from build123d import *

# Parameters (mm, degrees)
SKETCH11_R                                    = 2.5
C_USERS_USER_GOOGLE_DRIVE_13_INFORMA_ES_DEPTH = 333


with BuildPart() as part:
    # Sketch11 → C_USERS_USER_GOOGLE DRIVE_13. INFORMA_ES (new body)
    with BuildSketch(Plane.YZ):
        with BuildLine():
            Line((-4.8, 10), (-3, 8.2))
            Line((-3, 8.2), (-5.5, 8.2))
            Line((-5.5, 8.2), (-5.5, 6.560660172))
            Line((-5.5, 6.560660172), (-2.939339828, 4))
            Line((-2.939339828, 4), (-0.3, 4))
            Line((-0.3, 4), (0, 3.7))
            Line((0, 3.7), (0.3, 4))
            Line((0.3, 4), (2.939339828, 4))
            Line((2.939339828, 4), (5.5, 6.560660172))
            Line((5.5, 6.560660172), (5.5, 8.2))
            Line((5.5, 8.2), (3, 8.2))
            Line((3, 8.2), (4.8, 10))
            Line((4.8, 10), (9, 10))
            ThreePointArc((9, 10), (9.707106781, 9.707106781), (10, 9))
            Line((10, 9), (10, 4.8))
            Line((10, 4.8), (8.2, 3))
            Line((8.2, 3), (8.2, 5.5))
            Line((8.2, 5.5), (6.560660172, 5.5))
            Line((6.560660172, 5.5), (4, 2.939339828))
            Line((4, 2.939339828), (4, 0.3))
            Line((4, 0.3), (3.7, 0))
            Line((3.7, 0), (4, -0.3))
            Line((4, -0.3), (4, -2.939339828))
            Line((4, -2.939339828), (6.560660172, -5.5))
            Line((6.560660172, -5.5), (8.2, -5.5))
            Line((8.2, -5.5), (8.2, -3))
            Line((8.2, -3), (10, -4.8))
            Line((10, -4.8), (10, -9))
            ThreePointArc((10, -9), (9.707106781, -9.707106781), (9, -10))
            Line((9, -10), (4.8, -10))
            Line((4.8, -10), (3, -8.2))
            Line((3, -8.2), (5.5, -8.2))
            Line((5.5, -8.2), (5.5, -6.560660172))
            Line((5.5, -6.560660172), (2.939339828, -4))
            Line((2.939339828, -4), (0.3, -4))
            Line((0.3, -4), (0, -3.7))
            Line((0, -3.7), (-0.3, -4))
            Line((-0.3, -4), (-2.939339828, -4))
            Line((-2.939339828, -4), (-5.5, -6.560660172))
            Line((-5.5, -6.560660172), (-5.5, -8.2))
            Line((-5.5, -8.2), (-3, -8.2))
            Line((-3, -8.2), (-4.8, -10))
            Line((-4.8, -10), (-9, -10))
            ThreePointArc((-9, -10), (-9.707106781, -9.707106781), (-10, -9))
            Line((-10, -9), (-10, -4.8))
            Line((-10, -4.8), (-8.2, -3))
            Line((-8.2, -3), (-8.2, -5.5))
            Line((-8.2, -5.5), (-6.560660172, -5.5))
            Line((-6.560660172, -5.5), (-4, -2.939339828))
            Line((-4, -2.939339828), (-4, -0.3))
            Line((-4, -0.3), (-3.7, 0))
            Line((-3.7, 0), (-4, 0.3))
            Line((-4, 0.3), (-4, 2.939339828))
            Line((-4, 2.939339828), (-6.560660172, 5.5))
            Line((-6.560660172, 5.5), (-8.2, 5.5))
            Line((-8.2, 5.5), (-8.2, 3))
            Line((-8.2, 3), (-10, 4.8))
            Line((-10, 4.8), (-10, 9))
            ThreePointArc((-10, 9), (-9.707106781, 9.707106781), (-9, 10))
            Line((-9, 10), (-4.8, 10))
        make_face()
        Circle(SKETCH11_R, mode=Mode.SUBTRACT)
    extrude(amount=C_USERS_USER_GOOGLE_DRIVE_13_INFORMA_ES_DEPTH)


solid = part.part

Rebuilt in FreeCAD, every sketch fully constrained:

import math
import FreeCAD as App
import Part
import Sketcher

V = App.Vector

doc = App.newDocument("Part")
body = doc.addObject("PartDesign::Body", "Body")

# Sketch on YZ plane
sketch1 = body.newObject("Sketcher::SketchObject", "Sketch")
sketch1.AttachmentSupport = (doc.getObject("YZ_Plane"), [""])
sketch1.MapMode = "FlatFace"
sketch1.addGeometry([
    Part.LineSegment(V(-3, 8.2, 0), V(-4.8, 10, 0)),  # 0
    Part.LineSegment(V(-4.8, 10, 0), V(-9, 10, 0)),  # 1
    Part.ArcOfCircle(Part.Circle(V(-9, 9, 0), V(0, 0, 1), 1), math.radians(90), math.radians(180)),  # 2
    Part.LineSegment(V(-10, 9, 0), V(-10, 4.8, 0)),  # 3
    Part.LineSegment(V(-10, 4.8, 0), V(-8.2, 3, 0)),  # 4
    Part.LineSegment(V(-8.2, 3, 0), V(-8.2, 5.5, 0)),  # 5
    Part.LineSegment(V(-8.2, 5.5, 0), V(-6.56, 5.5, 0)),  # 6
    Part.LineSegment(V(-6.56, 5.5, 0), V(-4, 2.94, 0)),  # 7
    Part.LineSegment(V(-4, 2.94, 0), V(-4, 0.3, 0)),  # 8
    Part.LineSegment(V(-4, 0.3, 0), V(-3.7, 0, 0)),  # 9
    Part.LineSegment(V(-3.7, 0, 0), V(-4, -0.3, 0)),  # 10
    Part.LineSegment(V(-4, -0.3, 0), V(-4, -2.94, 0)),  # 11
    Part.LineSegment(V(-4, -2.94, 0), V(-6.56, -5.5, 0)),  # 12
    Part.LineSegment(V(-6.56, -5.5, 0), V(-8.2, -5.5, 0)),  # 13
    Part.LineSegment(V(-8.2, -5.5, 0), V(-8.2, -3, 0)),  # 14
    Part.LineSegment(V(-8.2, -3, 0), V(-10, -4.8, 0)),  # 15
    Part.LineSegment(V(-10, -4.8, 0), V(-10, -9, 0)),  # 16
    Part.ArcOfCircle(Part.Circle(V(-9, -9, 0), V(0, 0, 1), 1), math.radians(-180), math.radians(-90)),  # 17
    Part.LineSegment(V(-9, -10, 0), V(-4.8, -10, 0)),  # 18
    Part.LineSegment(V(-4.8, -10, 0), V(-3, -8.2, 0)),  # 19
    Part.LineSegment(V(-3, -8.2, 0), V(-5.5, -8.2, 0)),  # 20
    Part.LineSegment(V(-5.5, -8.2, 0), V(-5.5, -6.56, 0)),  # 21
    Part.LineSegment(V(-5.5, -6.56, 0), V(-2.94, -4, 0)),  # 22
    Part.LineSegment(V(-2.94, -4, 0), V(-0.3, -4, 0)),  # 23
    Part.LineSegment(V(-0.3, -4, 0), V(0, -3.7, 0)),  # 24
    Part.LineSegment(V(0, -3.7, 0), V(0.3, -4, 0)),  # 25
    Part.LineSegment(V(0.3, -4, 0), V(2.94, -4, 0)),  # 26
    Part.LineSegment(V(2.94, -4, 0), V(5.5, -6.56, 0)),  # 27
    Part.LineSegment(V(5.5, -6.56, 0), V(5.5, -8.2, 0)),  # 28
    Part.LineSegment(V(5.5, -8.2, 0), V(3, -8.2, 0)),  # 29
    Part.LineSegment(V(3, -8.2, 0), V(4.8, -10, 0)),  # 30
    Part.LineSegment(V(4.8, -10, 0), V(9, -10, 0)),  # 31
    Part.ArcOfCircle(Part.Circle(V(9, -9, 0), V(0, 0, 1), 1), math.radians(-90), math.radians(0)),  # 32
    Part.LineSegment(V(10, -9, 0), V(10, -4.8, 0)),  # 33
    Part.LineSegment(V(10, -4.8, 0), V(8.2, -3, 0)),  # 34
    Part.LineSegment(V(8.2, -3, 0), V(8.2, -5.5, 0)),  # 35
    Part.LineSegment(V(8.2, -5.5, 0), V(6.56, -5.5, 0)),  # 36
    Part.LineSegment(V(6.56, -5.5, 0), V(4, -2.94, 0)),  # 37
    Part.LineSegment(V(4, -2.94, 0), V(4, -0.3, 0)),  # 38
    Part.LineSegment(V(4, -0.3, 0), V(3.7, 0, 0)),  # 39
    Part.LineSegment(V(3.7, 0, 0), V(4, 0.3, 0)),  # 40
    Part.LineSegment(V(4, 0.3, 0), V(4, 2.94, 0)),  # 41
    Part.LineSegment(V(4, 2.94, 0), V(6.56, 5.5, 0)),  # 42
    Part.LineSegment(V(6.56, 5.5, 0), V(8.2, 5.5, 0)),  # 43
    Part.LineSegment(V(8.2, 5.5, 0), V(8.2, 3, 0)),  # 44
    Part.LineSegment(V(8.2, 3, 0), V(10, 4.8, 0)),  # 45
    Part.LineSegment(V(10, 4.8, 0), V(10, 9, 0)),  # 46
    Part.ArcOfCircle(Part.Circle(V(9, 9, 0), V(0, 0, 1), 1), math.radians(0), math.radians(90)),  # 47
    Part.LineSegment(V(9, 10, 0), V(4.8, 10, 0)),  # 48
    Part.LineSegment(V(4.8, 10, 0), V(3, 8.2, 0)),  # 49
    Part.LineSegment(V(3, 8.2, 0), V(5.5, 8.2, 0)),  # 50
    Part.LineSegment(V(5.5, 8.2, 0), V(5.5, 6.56, 0)),  # 51
    Part.LineSegment(V(5.5, 6.56, 0), V(2.94, 4, 0)),  # 52
    Part.LineSegment(V(2.94, 4, 0), V(0.3, 4, 0)),  # 53
    Part.LineSegment(V(0.3, 4, 0), V(0, 3.7, 0)),  # 54
    Part.LineSegment(V(0, 3.7, 0), V(-0.3, 4, 0)),  # 55
    Part.LineSegment(V(-0.3, 4, 0), V(-2.94, 4, 0)),  # 56
    Part.LineSegment(V(-2.94, 4, 0), V(-5.5, 6.56, 0)),  # 57
    Part.LineSegment(V(-5.5, 6.56, 0), V(-5.5, 8.2, 0)),  # 58
    Part.LineSegment(V(-5.5, 8.2, 0), V(-3, 8.2, 0)),  # 59
    Part.Circle(V(0, 0, 0), V(0, 0, 1), 2.5),  # 60
], False)
sketch1.addConstraint([
    Sketcher.Constraint("Coincident", 0, 2, 1, 1),
    Sketcher.Constraint("Tangent", 1, 2, 2, 1),
    Sketcher.Constraint("Tangent", 2, 2, 3, 1),
    Sketcher.Constraint("Coincident", 3, 2, 4, 1),
    Sketcher.Constraint("Coincident", 4, 2, 5, 1),
    Sketcher.Constraint("Coincident", 5, 2, 6, 1),
    Sketcher.Constraint("Coincident", 6, 2, 7, 1),
    Sketcher.Constraint("Coincident", 7, 2, 8, 1),
    Sketcher.Constraint("Coincident", 8, 2, 9, 1),
    Sketcher.Constraint("Coincident", 9, 2, 10, 1),
    Sketcher.Constraint("Coincident", 10, 2, 11, 1),
    Sketcher.Constraint("Coincident", 11, 2, 12, 1),
    Sketcher.Constraint("Coincident", 12, 2, 13, 1),
    Sketcher.Constraint("Coincident", 13, 2, 14, 1),
    Sketcher.Constraint("Coincident", 14, 2, 15, 1),
    Sketcher.Constraint("Coincident", 15, 2, 16, 1),
    Sketcher.Constraint("Tangent", 16, 2, 17, 1),
    Sketcher.Constraint("Tangent", 17, 2, 18, 1),
    Sketcher.Constraint("Coincident", 18, 2, 19, 1),
    Sketcher.Constraint("Coincident", 19, 2, 20, 1),
    Sketcher.Constraint("Coincident", 20, 2, 21, 1),
    Sketcher.Constraint("Coincident", 21, 2, 22, 1),
    Sketcher.Constraint("Coincident", 22, 2, 23, 1),
    Sketcher.Constraint("Coincident", 23, 2, 24, 1),
    Sketcher.Constraint("Coincident", 24, 2, 25, 1),
    Sketcher.Constraint("Coincident", 25, 2, 26, 1),
    Sketcher.Constraint("Coincident", 26, 2, 27, 1),
    Sketcher.Constraint("Coincident", 27, 2, 28, 1),
    Sketcher.Constraint("Coincident", 28, 2, 29, 1),
    Sketcher.Constraint("Coincident", 29, 2, 30, 1),
    Sketcher.Constraint("Coincident", 30, 2, 31, 1),
    Sketcher.Constraint("Tangent", 31, 2, 32, 1),
    Sketcher.Constraint("Tangent", 32, 2, 33, 1),
    Sketcher.Constraint("Coincident", 33, 2, 34, 1),
    Sketcher.Constraint("Coincident", 34, 2, 35, 1),
    Sketcher.Constraint("Coincident", 35, 2, 36, 1),
    Sketcher.Constraint("Coincident", 36, 2, 37, 1),
    Sketcher.Constraint("Coincident", 37, 2, 38, 1),
    Sketcher.Constraint("Coincident", 38, 2, 39, 1),
    Sketcher.Constraint("Coincident", 39, 2, 40, 1),
    Sketcher.Constraint("Coincident", 40, 2, 41, 1),
    Sketcher.Constraint("Coincident", 41, 2, 42, 1),
    Sketcher.Constraint("Coincident", 42, 2, 43, 1),
    Sketcher.Constraint("Coincident", 43, 2, 44, 1),
    Sketcher.Constraint("Coincident", 44, 2, 45, 1),
    Sketcher.Constraint("Coincident", 45, 2, 46, 1),
    Sketcher.Constraint("Tangent", 46, 2, 47, 1),
    Sketcher.Constraint("Tangent", 47, 2, 48, 1),
    Sketcher.Constraint("Coincident", 48, 2, 49, 1),
    Sketcher.Constraint("Coincident", 49, 2, 50, 1),
    Sketcher.Constraint("Coincident", 50, 2, 51, 1),
    Sketcher.Constraint("Coincident", 51, 2, 52, 1),
    Sketcher.Constraint("Coincident", 52, 2, 53, 1),
    Sketcher.Constraint("Coincident", 53, 2, 54, 1),
    Sketcher.Constraint("Coincident", 54, 2, 55, 1),
    Sketcher.Constraint("Coincident", 55, 2, 56, 1),
    Sketcher.Constraint("Coincident", 56, 2, 57, 1),
    Sketcher.Constraint("Coincident", 57, 2, 58, 1),
    Sketcher.Constraint("Coincident", 58, 2, 59, 1),
    Sketcher.Constraint("Coincident", 59, 2, 0, 1),
    Sketcher.Constraint("Horizontal", 1),
    Sketcher.Constraint("Vertical", 3),
    Sketcher.Constraint("Vertical", 5),
    Sketcher.Constraint("Horizontal", 6),
    Sketcher.Constraint("Vertical", 8),
    Sketcher.Constraint("Vertical", 11),
    Sketcher.Constraint("Horizontal", 13),
    Sketcher.Constraint("Vertical", 14),
    Sketcher.Constraint("Vertical", 16),
    Sketcher.Constraint("Horizontal", 18),
    Sketcher.Constraint("Horizontal", 20),
    Sketcher.Constraint("Vertical", 21),
    Sketcher.Constraint("Horizontal", 23),
    Sketcher.Constraint("Horizontal", 26),
    Sketcher.Constraint("Vertical", 28),
    Sketcher.Constraint("Horizontal", 29),
    Sketcher.Constraint("Horizontal", 31),
    Sketcher.Constraint("Vertical", 33),
    Sketcher.Constraint("Vertical", 35),
    Sketcher.Constraint("Horizontal", 36),
    Sketcher.Constraint("Vertical", 38),
    Sketcher.Constraint("Vertical", 41),
    Sketcher.Constraint("Horizontal", 43),
    Sketcher.Constraint("Vertical", 44),
    Sketcher.Constraint("Vertical", 46),
    Sketcher.Constraint("Horizontal", 48),
    Sketcher.Constraint("Horizontal", 50),
    Sketcher.Constraint("Vertical", 51),
    Sketcher.Constraint("Horizontal", 53),
    Sketcher.Constraint("Horizontal", 56),
    Sketcher.Constraint("Vertical", 58),
    Sketcher.Constraint("Horizontal", 59),
    Sketcher.Constraint("Coincident", 60, 3, -1, 1),
    Sketcher.Constraint("Equal", 2, 17),
    Sketcher.Constraint("Equal", 17, 32),
    Sketcher.Constraint("Equal", 32, 47),
    Sketcher.Constraint("Symmetric", 2, 3, 32, 3, -1, 1),
    Sketcher.Constraint("Symmetric", 17, 3, 47, 3, -1, 1),
    Sketcher.Constraint("Symmetric", 4, 2, 34, 2, -1, 1),
    Sketcher.Constraint("Symmetric", 6, 2, 36, 2, -1, 1),
    Sketcher.Constraint("Symmetric", 7, 2, 37, 2, -1, 1),
    Sketcher.Constraint("Symmetric", 9, 2, 39, 2, -1, 1),
    Sketcher.Constraint("Symmetric", 10, 2, 40, 2, -1, 1),
    Sketcher.Constraint("Symmetric", 12, 2, 42, 2, -1, 1),
    Sketcher.Constraint("Symmetric", 14, 2, 44, 2, -1, 1),
    Sketcher.Constraint("Symmetric", 19, 2, 49, 2, -1, 1),
    Sketcher.Constraint("Symmetric", 21, 2, 51, 2, -1, 1),
    Sketcher.Constraint("Symmetric", 22, 2, 52, 2, -1, 1),
    Sketcher.Constraint("Symmetric", 24, 2, 54, 2, -1, 1),
    Sketcher.Constraint("Symmetric", 25, 2, 55, 2, -1, 1),
    Sketcher.Constraint("Symmetric", 27, 2, 57, 2, -1, 1),
    Sketcher.Constraint("Symmetric", 29, 2, 59, 2, -1, 1),
    Sketcher.Constraint("Symmetric", 17, 3, 32, 3, -2),
    Sketcher.Constraint("Symmetric", 23, 2, 25, 2, -2),
    Sketcher.Constraint("Symmetric", 21, 2, 27, 2, -2),
    Sketcher.Constraint("Symmetric", 19, 2, 29, 2, -2),
    Sketcher.Constraint("Symmetric", 14, 2, 34, 2, -2),
    Sketcher.Constraint("Symmetric", 12, 2, 36, 2, -2),
    Sketcher.Constraint("Symmetric", 11, 2, 37, 2, -2),
    Sketcher.Constraint("PointOnObject", 9, 2, -1),
    Sketcher.Constraint("PointOnObject", 24, 2, -2),
    Sketcher.Constraint("Parallel", 0, 4),
    Sketcher.Constraint("Parallel", 4, 7),
    Sketcher.Constraint("Parallel", 7, 9),
    Sketcher.Constraint("Perpendicular", 9, 10),
    Sketcher.Constraint("Parallel", 10, 12),
    Sketcher.Constraint("Parallel", 12, 15),
    Sketcher.Constraint("Parallel", 15, 19),
    Sketcher.Constraint("Parallel", 19, 22),
    Sketcher.Constraint("Parallel", 22, 24),
    Sketcher.Constraint("Parallel", 25, 27),
    Sketcher.Constraint("Parallel", 27, 30),
    Sketcher.Constraint("Parallel", 30, 34),
    Sketcher.Constraint("Parallel", 37, 39),
    Sketcher.Constraint("Parallel", 40, 42),
    Sketcher.Constraint("Parallel", 42, 45),
    Sketcher.Constraint("Parallel", 45, 49),
    Sketcher.Constraint("Parallel", 52, 54),
    Sketcher.Constraint("Parallel", 55, 57),
    Sketcher.Constraint("Equal", 48, 3),
    Sketcher.Constraint("Equal", 59, 5),
    Sketcher.Constraint("Equal", 56, 8),
    Sketcher.Constraint("Equal", 43, 21),
    Sketcher.Constraint("Equal", 0, 4),
    Sketcher.Constraint("Equal", 12, 22),
    Sketcher.Constraint("Equal", 10, 24),
    Sketcher.Constraint("Diameter", 60, 5.0),
    Sketcher.Constraint("Radius", 2, 1.0),
    Sketcher.Constraint("DistanceX", 1, 2, 1, 1, 4.2),
    Sketcher.Constraint("DistanceX", 20, 2, 20, 1, 2.5),
    Sketcher.Constraint("DistanceX", 2, 3, -1, 1, 9.0),
    Sketcher.Constraint("DistanceY", -1, 1, 4, 2, 3.0),
    Sketcher.Constraint("DistanceX", 7, 2, -1, 1, 4.0),
    Sketcher.Constraint("DistanceY", -1, 1, 8, 2, 0.3),
    Sketcher.Constraint("DistanceX", 6, 1, 6, 2, 1.63934),
])
pad1 = body.newObject("PartDesign::Pad", "Pad")
pad1.Profile = sketch1
pad1.Length = 333

doc.recompute()
